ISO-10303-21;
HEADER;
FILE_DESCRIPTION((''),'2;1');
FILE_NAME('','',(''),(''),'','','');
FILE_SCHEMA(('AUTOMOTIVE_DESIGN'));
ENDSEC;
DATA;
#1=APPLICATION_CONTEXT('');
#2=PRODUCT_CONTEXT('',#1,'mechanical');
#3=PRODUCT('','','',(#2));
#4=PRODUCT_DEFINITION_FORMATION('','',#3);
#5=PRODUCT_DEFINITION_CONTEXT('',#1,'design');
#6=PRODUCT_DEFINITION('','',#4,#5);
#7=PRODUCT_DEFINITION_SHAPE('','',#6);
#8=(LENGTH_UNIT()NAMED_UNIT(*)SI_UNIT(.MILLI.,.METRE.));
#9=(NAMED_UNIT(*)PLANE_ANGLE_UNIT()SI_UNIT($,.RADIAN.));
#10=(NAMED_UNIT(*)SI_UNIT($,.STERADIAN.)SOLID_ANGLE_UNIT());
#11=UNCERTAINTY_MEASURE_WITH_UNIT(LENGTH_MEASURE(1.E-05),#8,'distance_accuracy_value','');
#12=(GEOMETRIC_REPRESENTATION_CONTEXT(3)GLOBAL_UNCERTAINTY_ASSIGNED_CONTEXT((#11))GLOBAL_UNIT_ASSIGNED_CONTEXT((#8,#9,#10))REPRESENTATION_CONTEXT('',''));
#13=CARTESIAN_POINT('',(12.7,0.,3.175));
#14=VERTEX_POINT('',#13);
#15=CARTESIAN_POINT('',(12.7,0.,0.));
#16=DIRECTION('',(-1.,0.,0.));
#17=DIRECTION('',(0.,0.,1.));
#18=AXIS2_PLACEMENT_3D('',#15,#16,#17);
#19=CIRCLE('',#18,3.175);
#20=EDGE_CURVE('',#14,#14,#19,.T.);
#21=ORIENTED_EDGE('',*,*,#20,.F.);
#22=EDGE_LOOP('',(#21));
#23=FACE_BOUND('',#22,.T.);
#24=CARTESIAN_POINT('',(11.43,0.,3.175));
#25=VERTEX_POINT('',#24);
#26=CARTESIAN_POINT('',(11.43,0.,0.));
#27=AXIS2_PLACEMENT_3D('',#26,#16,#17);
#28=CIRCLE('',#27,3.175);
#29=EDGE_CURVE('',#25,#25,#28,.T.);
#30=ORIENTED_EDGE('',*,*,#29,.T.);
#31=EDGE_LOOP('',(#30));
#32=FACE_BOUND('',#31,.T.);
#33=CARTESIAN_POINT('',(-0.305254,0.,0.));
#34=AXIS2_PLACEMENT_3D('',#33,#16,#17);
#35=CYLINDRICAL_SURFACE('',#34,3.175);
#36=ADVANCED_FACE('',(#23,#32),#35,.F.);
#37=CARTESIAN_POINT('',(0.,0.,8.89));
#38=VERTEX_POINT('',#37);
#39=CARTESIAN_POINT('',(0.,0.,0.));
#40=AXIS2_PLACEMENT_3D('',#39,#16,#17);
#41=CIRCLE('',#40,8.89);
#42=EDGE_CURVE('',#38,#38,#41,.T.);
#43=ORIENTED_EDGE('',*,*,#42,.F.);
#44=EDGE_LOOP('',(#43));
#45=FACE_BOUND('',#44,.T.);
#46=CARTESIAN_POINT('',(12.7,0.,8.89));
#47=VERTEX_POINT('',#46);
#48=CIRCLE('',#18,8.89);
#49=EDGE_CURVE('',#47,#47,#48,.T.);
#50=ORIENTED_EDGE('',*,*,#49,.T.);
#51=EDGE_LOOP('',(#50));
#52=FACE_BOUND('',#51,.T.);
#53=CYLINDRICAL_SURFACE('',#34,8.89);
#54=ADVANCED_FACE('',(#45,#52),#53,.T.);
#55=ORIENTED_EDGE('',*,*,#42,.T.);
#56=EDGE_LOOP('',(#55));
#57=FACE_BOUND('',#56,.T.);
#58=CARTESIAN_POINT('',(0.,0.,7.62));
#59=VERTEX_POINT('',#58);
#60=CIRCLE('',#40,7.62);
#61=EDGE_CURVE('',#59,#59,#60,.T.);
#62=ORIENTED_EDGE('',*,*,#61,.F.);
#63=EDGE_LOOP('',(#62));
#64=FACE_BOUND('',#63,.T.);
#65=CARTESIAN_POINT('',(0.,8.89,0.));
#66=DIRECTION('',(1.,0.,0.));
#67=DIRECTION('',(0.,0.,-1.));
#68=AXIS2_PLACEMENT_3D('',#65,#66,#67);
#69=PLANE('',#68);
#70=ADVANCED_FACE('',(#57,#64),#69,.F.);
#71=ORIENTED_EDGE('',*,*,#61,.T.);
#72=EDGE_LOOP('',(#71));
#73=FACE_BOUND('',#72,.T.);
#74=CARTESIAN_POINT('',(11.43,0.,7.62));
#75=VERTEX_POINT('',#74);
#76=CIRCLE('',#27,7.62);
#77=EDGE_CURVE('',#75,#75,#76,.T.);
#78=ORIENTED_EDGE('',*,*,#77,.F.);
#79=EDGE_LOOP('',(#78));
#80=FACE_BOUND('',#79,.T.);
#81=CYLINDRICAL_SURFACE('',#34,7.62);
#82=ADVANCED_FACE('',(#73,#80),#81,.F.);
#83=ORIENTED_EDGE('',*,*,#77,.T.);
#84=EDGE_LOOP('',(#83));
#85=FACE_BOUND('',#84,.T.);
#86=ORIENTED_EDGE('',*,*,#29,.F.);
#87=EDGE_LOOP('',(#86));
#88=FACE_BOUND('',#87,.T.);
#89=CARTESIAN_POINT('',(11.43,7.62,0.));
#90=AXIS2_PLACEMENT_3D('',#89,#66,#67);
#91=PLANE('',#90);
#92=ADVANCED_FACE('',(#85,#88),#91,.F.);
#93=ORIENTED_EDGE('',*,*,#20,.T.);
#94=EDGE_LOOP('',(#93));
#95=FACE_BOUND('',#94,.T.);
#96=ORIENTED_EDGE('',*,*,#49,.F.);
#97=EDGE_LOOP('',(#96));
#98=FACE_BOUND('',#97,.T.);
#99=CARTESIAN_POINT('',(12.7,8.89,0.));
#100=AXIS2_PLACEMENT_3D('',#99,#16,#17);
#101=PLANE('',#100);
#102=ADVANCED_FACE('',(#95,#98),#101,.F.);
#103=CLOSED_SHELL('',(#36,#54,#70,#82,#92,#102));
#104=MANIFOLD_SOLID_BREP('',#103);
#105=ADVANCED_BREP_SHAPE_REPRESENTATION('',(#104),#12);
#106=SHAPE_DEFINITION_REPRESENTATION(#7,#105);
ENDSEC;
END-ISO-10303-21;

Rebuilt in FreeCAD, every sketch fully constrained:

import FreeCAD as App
import Part
import Sketcher
from FreeCAD import Vector
Q = App.Units.Quantity

doc = App.newDocument("Part")
body = doc.addObject("PartDesign::Body", "Body")

sketch1 = body.newObject("Sketcher::SketchObject", "Sketch")
sketch1.AttachmentSupport = (doc.getObject("XY_Plane"), [""])
sketch1.MapMode = "FlatFace"
sketch1.addGeometry([
    Part.LineSegment(Vector(0, 7.6, 0), Vector(11.4, 7.6, 0)),
    Part.LineSegment(Vector(11.4, 7.6, 0), Vector(11.4, 3.2, 0)),
    Part.LineSegment(Vector(11.4, 3.2, 0), Vector(12.7, 3.2, 0)),
    Part.LineSegment(Vector(12.7, 3.2, 0), Vector(12.7, 8.9, 0)),
    Part.LineSegment(Vector(12.7, 8.9, 0), Vector(0, 8.9, 0)),
    Part.LineSegment(Vector(0, 8.9, 0), Vector(0, 7.6, 0)),
], False)
sketch1.addConstraint([
    Sketcher.Constraint("Coincident", 0, 2, 1, 1),
    Sketcher.Constraint("Coincident", 1, 2, 2, 1),
    Sketcher.Constraint("Coincident", 2, 2, 3, 1),
    Sketcher.Constraint("Coincident", 3, 2, 4, 1),
    Sketcher.Constraint("Coincident", 4, 2, 5, 1),
    Sketcher.Constraint("Coincident", 5, 2, 0, 1),
    Sketcher.Constraint("Horizontal", 0),
    Sketcher.Constraint("Vertical", 1),
    Sketcher.Constraint("Horizontal", 2),
    Sketcher.Constraint("Vertical", 3),
    Sketcher.Constraint("Horizontal", 4),
    Sketcher.Constraint("Vertical", 5),
    Sketcher.Constraint("PointOnObject", 4, 2, -2),
    Sketcher.Constraint("Equal", 2, 5),
    Sketcher.Constraint("DistanceX", 4, 2, 4, 1, Q("0.5 in")),
    Sketcher.Constraint("DistanceX", 0, 1, 0, 2, Q("0.45 in")),
    Sketcher.Constraint("DistanceY", -1, 1, 0, 2, Q("0.3 in")),
    Sketcher.Constraint("DistanceY", 1, 2, 1, 1, Q("0.175 in")),
])
revolution = body.newObject("PartDesign::Revolution", "Revolution")
revolution.Profile = sketch1
revolution.ReferenceAxis = (sketch1, ["H_Axis"])
revolution.Angle = 360

doc.recompute()
